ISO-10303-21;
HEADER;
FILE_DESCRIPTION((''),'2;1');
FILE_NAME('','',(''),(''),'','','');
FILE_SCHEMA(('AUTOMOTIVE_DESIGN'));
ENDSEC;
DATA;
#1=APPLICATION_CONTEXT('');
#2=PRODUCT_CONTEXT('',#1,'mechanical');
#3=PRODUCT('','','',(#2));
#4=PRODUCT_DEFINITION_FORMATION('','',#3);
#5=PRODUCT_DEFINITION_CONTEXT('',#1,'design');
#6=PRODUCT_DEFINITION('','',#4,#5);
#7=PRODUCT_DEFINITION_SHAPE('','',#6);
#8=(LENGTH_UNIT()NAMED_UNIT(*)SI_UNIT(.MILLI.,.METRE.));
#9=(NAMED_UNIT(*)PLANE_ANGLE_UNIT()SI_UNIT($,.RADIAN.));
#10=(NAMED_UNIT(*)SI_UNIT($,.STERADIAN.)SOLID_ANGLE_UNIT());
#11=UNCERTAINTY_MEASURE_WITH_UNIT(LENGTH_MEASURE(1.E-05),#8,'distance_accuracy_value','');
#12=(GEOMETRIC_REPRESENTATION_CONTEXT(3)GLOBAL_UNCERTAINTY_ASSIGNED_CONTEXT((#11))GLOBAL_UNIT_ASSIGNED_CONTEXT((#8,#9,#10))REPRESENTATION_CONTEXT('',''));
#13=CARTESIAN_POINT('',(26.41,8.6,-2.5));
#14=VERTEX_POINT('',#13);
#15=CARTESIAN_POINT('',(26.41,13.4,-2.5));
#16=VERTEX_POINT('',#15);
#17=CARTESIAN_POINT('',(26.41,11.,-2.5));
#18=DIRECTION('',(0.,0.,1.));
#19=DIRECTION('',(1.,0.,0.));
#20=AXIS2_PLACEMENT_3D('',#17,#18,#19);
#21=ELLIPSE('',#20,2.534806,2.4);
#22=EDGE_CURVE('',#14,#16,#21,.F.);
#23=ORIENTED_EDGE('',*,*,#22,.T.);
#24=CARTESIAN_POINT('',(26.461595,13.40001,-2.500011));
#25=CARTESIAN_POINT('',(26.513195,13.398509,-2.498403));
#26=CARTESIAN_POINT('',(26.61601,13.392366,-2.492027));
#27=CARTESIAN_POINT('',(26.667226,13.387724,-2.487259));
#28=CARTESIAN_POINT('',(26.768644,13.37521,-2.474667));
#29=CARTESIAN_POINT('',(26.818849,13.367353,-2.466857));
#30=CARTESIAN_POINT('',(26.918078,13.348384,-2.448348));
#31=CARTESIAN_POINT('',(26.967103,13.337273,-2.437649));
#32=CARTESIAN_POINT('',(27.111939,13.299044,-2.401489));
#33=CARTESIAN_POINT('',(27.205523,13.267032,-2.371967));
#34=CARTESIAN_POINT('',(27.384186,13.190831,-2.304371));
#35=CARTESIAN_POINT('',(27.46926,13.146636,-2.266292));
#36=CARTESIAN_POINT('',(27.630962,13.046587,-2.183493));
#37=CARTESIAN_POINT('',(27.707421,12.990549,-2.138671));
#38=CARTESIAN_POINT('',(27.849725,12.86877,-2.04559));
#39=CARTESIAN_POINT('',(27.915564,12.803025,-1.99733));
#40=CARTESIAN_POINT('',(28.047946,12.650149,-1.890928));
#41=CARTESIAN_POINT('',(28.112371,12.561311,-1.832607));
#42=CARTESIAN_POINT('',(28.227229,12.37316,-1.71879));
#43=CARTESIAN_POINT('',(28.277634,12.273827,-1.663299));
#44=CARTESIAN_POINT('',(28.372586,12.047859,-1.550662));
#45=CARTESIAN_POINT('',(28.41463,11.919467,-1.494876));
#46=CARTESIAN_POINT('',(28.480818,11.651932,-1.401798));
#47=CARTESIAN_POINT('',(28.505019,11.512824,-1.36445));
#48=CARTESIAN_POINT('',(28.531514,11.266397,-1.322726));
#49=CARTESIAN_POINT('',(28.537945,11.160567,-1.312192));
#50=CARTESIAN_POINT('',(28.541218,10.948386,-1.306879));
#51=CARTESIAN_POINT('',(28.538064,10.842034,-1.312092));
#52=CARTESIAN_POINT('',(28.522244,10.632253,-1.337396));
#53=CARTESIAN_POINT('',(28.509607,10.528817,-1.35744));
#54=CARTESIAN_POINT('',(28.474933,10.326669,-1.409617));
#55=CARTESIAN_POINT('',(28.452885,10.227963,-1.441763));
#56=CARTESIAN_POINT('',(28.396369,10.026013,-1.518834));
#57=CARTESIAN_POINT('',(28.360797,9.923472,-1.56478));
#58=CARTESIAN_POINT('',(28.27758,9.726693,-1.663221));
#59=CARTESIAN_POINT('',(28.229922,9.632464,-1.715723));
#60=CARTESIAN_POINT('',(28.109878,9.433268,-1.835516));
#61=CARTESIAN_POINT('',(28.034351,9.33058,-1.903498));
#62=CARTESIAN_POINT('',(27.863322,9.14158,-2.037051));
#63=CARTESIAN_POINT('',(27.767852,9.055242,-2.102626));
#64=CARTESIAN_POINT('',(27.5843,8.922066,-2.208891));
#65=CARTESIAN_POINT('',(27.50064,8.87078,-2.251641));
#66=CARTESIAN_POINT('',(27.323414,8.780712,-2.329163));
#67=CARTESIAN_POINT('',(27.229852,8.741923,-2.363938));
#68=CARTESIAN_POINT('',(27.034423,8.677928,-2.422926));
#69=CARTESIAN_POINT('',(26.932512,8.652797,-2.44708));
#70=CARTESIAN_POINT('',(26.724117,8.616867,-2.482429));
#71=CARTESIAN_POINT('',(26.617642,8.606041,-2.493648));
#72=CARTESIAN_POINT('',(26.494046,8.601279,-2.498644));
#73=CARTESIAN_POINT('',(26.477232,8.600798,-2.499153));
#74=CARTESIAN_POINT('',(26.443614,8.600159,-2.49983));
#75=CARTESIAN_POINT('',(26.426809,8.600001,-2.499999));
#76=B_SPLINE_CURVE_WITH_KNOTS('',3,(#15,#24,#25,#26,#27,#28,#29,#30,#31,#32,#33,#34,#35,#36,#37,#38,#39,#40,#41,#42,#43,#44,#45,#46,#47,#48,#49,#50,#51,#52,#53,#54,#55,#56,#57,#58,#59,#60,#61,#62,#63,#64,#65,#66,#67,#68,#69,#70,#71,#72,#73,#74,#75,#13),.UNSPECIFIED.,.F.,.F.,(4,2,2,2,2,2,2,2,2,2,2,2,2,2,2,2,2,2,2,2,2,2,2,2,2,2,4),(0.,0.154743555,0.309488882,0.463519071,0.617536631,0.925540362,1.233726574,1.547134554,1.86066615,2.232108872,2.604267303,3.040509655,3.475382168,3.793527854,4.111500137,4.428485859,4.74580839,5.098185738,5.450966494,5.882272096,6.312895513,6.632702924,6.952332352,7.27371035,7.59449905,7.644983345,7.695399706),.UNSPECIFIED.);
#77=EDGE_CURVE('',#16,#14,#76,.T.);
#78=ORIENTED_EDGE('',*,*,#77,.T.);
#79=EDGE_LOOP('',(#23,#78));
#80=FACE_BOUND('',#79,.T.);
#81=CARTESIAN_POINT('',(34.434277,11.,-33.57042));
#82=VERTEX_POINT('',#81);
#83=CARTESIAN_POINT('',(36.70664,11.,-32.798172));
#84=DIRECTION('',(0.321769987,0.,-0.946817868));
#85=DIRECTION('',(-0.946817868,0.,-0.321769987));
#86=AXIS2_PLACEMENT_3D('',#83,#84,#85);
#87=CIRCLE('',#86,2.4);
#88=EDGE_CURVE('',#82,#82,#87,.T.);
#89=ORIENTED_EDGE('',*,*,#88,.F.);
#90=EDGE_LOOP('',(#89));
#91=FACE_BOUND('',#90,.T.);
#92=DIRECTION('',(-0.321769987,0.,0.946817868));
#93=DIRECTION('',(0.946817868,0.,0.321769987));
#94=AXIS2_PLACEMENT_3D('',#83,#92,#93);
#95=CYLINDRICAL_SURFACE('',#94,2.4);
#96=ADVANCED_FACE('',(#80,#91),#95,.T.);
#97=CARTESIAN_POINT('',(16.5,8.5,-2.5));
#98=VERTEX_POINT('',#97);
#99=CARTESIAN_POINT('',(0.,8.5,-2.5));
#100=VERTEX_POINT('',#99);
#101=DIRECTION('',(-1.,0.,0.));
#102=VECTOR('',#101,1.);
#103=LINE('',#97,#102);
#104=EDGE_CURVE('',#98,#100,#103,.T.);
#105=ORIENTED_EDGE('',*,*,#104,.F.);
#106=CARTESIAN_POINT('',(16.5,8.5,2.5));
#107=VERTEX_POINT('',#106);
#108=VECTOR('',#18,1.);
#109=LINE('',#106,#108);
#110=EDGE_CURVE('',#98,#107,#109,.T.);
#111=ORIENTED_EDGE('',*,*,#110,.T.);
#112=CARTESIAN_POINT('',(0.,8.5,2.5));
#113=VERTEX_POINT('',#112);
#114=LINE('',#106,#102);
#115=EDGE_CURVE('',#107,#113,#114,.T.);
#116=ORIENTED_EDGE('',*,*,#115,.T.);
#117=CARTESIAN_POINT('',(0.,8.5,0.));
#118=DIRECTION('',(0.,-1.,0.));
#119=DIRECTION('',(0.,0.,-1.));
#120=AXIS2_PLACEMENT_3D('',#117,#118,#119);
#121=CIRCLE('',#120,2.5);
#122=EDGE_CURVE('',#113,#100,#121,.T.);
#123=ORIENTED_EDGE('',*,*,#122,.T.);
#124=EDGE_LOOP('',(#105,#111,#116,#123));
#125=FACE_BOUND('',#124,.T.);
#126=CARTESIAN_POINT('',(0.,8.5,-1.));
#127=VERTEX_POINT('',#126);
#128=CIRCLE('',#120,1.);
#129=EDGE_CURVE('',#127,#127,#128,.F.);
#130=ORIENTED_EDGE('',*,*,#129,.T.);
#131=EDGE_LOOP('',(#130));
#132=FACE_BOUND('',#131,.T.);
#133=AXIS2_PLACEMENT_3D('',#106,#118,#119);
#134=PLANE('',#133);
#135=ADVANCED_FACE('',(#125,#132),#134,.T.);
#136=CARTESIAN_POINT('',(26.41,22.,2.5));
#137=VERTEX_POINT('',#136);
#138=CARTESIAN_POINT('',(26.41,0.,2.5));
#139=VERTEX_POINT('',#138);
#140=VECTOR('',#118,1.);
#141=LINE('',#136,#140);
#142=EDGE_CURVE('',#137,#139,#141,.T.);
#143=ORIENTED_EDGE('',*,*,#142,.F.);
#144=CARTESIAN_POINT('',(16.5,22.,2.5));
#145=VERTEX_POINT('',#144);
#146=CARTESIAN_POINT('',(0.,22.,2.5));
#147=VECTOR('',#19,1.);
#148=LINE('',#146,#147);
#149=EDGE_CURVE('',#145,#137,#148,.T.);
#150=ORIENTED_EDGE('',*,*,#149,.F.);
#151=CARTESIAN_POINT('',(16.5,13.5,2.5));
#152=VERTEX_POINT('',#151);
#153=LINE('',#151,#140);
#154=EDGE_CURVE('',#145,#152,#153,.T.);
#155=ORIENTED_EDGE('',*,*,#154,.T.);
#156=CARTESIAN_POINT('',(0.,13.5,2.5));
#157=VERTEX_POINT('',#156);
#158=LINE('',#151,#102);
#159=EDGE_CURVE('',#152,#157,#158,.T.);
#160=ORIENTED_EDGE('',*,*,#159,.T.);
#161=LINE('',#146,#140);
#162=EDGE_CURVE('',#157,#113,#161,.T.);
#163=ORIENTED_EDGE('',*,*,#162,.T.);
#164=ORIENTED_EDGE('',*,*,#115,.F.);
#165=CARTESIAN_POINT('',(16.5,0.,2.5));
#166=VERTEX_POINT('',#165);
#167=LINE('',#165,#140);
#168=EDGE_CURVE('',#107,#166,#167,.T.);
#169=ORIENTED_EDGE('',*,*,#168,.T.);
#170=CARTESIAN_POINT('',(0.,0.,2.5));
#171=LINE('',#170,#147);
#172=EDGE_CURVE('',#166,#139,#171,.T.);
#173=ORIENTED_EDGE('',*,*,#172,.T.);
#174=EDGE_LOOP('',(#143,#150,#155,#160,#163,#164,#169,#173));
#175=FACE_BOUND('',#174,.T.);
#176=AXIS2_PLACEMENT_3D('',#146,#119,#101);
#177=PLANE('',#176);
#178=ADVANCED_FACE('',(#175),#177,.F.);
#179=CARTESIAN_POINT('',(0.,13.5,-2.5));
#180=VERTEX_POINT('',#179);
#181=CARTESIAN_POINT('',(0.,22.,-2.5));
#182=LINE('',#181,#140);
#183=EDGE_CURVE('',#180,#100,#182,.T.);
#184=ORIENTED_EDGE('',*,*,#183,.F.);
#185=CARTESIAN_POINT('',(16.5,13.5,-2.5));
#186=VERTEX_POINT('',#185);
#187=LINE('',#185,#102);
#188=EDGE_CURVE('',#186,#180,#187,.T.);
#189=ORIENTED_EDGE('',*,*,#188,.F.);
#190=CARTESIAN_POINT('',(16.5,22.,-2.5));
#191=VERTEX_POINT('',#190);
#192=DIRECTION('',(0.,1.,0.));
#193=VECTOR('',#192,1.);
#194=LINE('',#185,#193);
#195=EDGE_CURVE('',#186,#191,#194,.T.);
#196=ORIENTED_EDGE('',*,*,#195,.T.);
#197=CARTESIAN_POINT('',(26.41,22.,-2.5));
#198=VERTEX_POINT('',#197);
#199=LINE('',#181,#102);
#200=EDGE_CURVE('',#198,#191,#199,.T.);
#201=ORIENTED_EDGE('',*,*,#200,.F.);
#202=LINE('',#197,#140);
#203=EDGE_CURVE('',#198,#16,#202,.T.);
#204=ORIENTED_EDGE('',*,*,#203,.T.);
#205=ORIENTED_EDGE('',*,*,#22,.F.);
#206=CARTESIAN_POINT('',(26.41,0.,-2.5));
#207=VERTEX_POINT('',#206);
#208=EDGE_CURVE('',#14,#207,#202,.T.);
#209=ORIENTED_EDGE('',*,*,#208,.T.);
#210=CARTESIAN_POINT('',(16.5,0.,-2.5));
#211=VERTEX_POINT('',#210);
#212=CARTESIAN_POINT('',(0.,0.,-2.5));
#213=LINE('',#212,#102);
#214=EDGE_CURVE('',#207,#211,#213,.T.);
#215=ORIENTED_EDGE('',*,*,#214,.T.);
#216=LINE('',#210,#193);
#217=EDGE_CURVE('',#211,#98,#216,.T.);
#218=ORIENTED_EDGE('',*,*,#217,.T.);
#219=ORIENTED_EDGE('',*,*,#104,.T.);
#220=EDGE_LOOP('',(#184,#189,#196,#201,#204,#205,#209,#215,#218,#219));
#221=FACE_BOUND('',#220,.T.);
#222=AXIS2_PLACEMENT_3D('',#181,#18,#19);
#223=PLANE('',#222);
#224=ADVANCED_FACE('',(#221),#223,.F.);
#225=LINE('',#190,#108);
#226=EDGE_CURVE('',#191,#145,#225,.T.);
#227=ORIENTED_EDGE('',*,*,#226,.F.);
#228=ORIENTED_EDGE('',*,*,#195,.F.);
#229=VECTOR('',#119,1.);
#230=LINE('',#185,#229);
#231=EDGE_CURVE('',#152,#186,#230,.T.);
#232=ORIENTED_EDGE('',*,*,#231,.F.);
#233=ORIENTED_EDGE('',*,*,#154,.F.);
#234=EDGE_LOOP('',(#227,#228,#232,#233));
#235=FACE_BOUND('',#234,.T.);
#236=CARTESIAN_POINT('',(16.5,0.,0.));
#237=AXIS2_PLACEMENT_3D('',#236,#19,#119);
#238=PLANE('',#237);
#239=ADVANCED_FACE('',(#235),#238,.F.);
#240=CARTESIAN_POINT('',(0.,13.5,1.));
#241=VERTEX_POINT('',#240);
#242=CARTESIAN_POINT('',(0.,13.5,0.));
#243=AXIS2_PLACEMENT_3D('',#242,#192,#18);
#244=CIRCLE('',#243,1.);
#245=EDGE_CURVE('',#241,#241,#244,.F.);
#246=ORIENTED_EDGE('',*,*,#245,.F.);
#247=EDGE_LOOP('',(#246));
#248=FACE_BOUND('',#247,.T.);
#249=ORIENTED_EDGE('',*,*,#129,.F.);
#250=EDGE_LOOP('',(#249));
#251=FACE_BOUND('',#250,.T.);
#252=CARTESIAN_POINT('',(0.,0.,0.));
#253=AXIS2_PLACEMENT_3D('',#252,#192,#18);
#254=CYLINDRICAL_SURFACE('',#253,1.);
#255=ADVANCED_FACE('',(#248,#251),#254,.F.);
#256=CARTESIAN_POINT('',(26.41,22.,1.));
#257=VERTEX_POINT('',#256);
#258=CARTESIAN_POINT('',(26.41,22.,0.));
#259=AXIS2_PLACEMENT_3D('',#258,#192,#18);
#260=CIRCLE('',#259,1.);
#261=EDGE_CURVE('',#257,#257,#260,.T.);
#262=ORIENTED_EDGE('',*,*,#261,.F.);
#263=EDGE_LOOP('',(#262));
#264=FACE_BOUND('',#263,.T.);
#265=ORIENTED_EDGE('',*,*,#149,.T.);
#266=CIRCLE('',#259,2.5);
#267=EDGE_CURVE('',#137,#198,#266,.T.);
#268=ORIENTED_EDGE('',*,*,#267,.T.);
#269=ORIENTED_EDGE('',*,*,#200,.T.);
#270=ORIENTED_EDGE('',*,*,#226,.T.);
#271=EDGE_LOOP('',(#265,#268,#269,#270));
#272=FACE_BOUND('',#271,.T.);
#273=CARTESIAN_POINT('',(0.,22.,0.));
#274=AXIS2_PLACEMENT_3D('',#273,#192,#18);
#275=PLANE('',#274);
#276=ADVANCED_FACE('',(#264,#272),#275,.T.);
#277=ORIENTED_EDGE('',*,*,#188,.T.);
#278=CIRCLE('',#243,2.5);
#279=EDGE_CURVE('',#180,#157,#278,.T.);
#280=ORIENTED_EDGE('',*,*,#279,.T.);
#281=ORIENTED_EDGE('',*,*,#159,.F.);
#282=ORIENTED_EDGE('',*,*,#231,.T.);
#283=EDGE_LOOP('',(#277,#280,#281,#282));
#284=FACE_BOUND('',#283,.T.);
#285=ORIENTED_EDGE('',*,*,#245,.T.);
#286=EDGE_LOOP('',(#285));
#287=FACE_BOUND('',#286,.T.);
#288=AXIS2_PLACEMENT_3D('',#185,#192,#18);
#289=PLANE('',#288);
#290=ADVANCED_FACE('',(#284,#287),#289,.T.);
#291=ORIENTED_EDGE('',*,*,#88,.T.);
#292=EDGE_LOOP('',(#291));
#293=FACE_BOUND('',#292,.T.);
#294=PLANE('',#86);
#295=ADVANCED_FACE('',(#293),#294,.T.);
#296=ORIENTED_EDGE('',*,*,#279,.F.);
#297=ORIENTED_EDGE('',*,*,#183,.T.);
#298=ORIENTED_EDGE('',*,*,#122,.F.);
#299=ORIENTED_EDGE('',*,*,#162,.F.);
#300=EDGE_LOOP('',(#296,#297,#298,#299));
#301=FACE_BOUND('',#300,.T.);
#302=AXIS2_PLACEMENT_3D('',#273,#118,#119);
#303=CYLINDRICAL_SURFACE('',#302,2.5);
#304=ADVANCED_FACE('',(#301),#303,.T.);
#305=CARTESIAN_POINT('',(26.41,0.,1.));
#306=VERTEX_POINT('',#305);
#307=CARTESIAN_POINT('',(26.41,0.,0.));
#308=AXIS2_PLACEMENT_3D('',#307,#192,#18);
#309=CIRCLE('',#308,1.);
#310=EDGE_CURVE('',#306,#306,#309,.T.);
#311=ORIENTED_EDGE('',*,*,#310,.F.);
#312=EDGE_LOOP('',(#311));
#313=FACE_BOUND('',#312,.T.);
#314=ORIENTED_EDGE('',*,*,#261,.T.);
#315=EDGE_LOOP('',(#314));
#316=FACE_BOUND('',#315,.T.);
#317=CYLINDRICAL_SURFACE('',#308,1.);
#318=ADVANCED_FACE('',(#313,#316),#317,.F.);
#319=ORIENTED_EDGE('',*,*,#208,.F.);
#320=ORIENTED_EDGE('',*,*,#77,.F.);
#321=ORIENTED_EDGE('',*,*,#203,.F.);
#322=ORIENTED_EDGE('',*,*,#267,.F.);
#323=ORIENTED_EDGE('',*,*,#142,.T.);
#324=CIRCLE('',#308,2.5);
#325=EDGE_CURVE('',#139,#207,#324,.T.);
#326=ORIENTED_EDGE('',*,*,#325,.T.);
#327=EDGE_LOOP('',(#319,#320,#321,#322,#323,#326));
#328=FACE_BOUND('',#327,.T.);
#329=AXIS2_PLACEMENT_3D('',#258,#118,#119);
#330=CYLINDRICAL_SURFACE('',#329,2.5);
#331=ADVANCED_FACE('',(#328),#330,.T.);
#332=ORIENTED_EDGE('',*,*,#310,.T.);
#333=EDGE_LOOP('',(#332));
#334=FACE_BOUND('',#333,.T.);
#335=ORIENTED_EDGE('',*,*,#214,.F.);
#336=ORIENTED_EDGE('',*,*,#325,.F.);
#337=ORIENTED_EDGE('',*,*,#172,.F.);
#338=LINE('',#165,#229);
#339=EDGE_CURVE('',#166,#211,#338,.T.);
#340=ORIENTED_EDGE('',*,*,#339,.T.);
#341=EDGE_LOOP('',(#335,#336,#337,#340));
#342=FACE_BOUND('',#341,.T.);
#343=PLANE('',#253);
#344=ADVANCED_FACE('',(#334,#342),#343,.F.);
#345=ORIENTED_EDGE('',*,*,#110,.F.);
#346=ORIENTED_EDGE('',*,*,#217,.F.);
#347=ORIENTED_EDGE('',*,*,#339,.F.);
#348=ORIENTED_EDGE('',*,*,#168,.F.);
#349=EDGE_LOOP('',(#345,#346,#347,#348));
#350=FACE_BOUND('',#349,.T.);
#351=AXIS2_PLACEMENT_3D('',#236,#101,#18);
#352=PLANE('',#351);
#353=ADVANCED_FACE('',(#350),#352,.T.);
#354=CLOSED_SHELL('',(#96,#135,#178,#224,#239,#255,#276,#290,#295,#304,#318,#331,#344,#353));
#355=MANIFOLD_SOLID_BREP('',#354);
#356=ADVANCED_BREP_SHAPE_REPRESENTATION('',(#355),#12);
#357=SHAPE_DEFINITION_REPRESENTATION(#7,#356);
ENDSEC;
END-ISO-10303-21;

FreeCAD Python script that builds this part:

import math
import FreeCAD as App
import Part
import Sketcher

V = App.Vector
Q = App.Units.Quantity

doc = App.newDocument("Part")
body = doc.addObject("PartDesign::Body", "Body")

sketch1 = doc.addObject("Sketcher::SketchObject", "Sketch")
body.addObject(sketch1)
sketch1.AttachmentSupport = (doc.XZ_Plane, [""])
sketch1.MapMode = "FlatFace"
sketch1.addGeometry([
    Part.LineSegment(V(26.4, -2.5, 0), V(0, -2.5, 0)),
    Part.ArcOfCircle(Part.Circle(V(0, 0, 0), V(0, 0, 1), 2.5), math.radians(90), math.radians(270)),
    Part.LineSegment(V(0, 2.5, 0), V(26.4, 2.5, 0)),
    Part.ArcOfCircle(Part.Circle(V(26.4, 0, 0), V(0, 0, 1), 2.5), math.radians(-90), math.radians(90)),
], False)
sketch1.addConstraint([
    Sketcher.Constraint("Tangent", 0, 2, 1, 2),
    Sketcher.Constraint("Tangent", 1, 1, 2, 1),
    Sketcher.Constraint("Tangent", 2, 2, 3, 2),
    Sketcher.Constraint("Tangent", 3, 1, 0, 1),
    Sketcher.Constraint("Horizontal", 0),
    Sketcher.Constraint("Horizontal", 2),
    Sketcher.Constraint("Coincident", 1, 3, -1, 1),
    Sketcher.Constraint("Radius", 1, Q("2.5 mm")),
    Sketcher.Constraint("DistanceX", 0, 2, 0, 1, Q("26.41 mm")),
])
pad1 = doc.addObject("PartDesign::Pad", "Pad")
body.addObject(pad1)
pad1.Profile = sketch1
pad1.Length = 22
pad1.Reversed = True

sketch2 = doc.addObject("Sketcher::SketchObject", "Sketch001")
body.addObject(sketch2)
sketch2.AttachmentSupport = (doc.XZ_Plane, [""])
sketch2.MapMode = "FlatFace"
sketch2.AttachmentOffset = App.Placement(V(0, 0, -22), App.Rotation())
sketch2.addGeometry([
    Part.Circle(V(0, 0, 0), V(0, 0, 1), 1),
    Part.Circle(V(26.4, 0, 0), V(0, 0, 1), 1),
], False)
sketch2.addConstraint([
    Sketcher.Constraint("Coincident", 0, 3, -1, 1),
    Sketcher.Constraint("Equal", 0, 1),
    Sketcher.Constraint("PointOnObject", 1, 3, -1),
    Sketcher.Constraint("Diameter", 0, Q("2 mm")),
    Sketcher.Constraint("DistanceX", -1, 1, 1, 3, Q("26.41 mm")),
])
pocket1 = doc.addObject("PartDesign::Pocket", "Pocket")
body.addObject(pocket1)
pocket1.Profile = sketch2
pocket1.Length = 22
pocket1.Reversed = True

sketch3 = doc.addObject("Sketcher::SketchObject", "Sketch002")
body.addObject(sketch3)
sketch3.AttachmentSupport = (doc.YZ_Plane, [""])
sketch3.MapMode = "FlatFace"
sketch3.AttachmentOffset = App.Placement(V(0, 0, -2.5), App.Rotation())
sketch3.addGeometry([
    Part.LineSegment(V(22, 2, 0), V(14, 2, 0)),
    Part.LineSegment(V(14, 2, 0), V(14, -2, 0)),
    Part.LineSegment(V(14, -2, 0), V(22, -2, 0)),
    Part.LineSegment(V(22, -2, 0), V(22, 2, 0)),
    Part.LineSegment(V(8, 2, 0), V(0, 2, 0)),
    Part.LineSegment(V(0, 2, 0), V(0, -2, 0)),
    Part.LineSegment(V(0, -2, 0), V(8, -2, 0)),
    Part.LineSegment(V(8, -2, 0), V(8, 2, 0)),
], False)
sketch3.addConstraint([
    Sketcher.Constraint("Coincident", 0, 2, 1, 1),
    Sketcher.Constraint("Coincident", 1, 2, 2, 1),
    Sketcher.Constraint("Coincident", 2, 2, 3, 1),
    Sketcher.Constraint("Coincident", 3, 2, 0, 1),
    Sketcher.Constraint("Coincident", 4, 2, 5, 1),
    Sketcher.Constraint("Coincident", 5, 2, 6, 1),
    Sketcher.Constraint("Coincident", 6, 2, 7, 1),
    Sketcher.Constraint("Coincident", 7, 2, 4, 1),
    Sketcher.Constraint("Horizontal", 0),
    Sketcher.Constraint("Vertical", 1),
    Sketcher.Constraint("Horizontal", 2),
    Sketcher.Constraint("Vertical", 3),
    Sketcher.Constraint("Horizontal", 4),
    Sketcher.Constraint("Vertical", 5),
    Sketcher.Constraint("Horizontal", 6),
    Sketcher.Constraint("Vertical", 7),
    Sketcher.Constraint("Symmetric", 4, 2, 5, 2, -1, 1),
    Sketcher.Constraint("Horizontal", 3, 2, 4, 2),
    Sketcher.Constraint("Horizontal", 2, 2, 5, 2),
    Sketcher.Constraint("Equal", 2, 4),
    Sketcher.Constraint("DistanceY", 1, 2, 1, 1, Q("5 mm")),
    Sketcher.Constraint("DistanceX", 0, 2, 0, 1, Q("8.5 mm")),
    Sketcher.Constraint("DistanceX", -1, 1, 2, 2, Q("22 mm")),
])
pocket2 = doc.addObject("PartDesign::Pocket", "Pocket001")
body.addObject(pocket2)
pocket2.Profile = sketch3
pocket2.Length = 19
pocket2.Reversed = True

sketch4 = doc.addObject("Sketcher::SketchObject", "Sketch003")
body.addObject(sketch4)
sketch4.Placement = App.Placement(V(3.233584, 0, -9.514918), App.Rotation(V(0, -1, 0), V(-0.946817868, 0, -0.321769987), V(0.321769987, 0, -0.946817868), "ZXY"))
sketch4.addGeometry(Part.Circle(V(-11, -24.2, 0), V(0, 0, 1), 2.4), False)
sketch4.addConstraint([
    Sketcher.Constraint("Diameter", 0, Q("4.8 mm")),
    Sketcher.Constraint("DistanceX", 0, 3, -1, 1, Q("11 mm")),
    Sketcher.Constraint("DistanceY", 0, 3, -1, 1, Q("24.201035 mm")),
])
pad2 = doc.addObject("PartDesign::Pad", "Pad001")
body.addObject(pad2)
pad2.Profile = sketch4
pad2.Length = 32.815625

doc.recompute()
